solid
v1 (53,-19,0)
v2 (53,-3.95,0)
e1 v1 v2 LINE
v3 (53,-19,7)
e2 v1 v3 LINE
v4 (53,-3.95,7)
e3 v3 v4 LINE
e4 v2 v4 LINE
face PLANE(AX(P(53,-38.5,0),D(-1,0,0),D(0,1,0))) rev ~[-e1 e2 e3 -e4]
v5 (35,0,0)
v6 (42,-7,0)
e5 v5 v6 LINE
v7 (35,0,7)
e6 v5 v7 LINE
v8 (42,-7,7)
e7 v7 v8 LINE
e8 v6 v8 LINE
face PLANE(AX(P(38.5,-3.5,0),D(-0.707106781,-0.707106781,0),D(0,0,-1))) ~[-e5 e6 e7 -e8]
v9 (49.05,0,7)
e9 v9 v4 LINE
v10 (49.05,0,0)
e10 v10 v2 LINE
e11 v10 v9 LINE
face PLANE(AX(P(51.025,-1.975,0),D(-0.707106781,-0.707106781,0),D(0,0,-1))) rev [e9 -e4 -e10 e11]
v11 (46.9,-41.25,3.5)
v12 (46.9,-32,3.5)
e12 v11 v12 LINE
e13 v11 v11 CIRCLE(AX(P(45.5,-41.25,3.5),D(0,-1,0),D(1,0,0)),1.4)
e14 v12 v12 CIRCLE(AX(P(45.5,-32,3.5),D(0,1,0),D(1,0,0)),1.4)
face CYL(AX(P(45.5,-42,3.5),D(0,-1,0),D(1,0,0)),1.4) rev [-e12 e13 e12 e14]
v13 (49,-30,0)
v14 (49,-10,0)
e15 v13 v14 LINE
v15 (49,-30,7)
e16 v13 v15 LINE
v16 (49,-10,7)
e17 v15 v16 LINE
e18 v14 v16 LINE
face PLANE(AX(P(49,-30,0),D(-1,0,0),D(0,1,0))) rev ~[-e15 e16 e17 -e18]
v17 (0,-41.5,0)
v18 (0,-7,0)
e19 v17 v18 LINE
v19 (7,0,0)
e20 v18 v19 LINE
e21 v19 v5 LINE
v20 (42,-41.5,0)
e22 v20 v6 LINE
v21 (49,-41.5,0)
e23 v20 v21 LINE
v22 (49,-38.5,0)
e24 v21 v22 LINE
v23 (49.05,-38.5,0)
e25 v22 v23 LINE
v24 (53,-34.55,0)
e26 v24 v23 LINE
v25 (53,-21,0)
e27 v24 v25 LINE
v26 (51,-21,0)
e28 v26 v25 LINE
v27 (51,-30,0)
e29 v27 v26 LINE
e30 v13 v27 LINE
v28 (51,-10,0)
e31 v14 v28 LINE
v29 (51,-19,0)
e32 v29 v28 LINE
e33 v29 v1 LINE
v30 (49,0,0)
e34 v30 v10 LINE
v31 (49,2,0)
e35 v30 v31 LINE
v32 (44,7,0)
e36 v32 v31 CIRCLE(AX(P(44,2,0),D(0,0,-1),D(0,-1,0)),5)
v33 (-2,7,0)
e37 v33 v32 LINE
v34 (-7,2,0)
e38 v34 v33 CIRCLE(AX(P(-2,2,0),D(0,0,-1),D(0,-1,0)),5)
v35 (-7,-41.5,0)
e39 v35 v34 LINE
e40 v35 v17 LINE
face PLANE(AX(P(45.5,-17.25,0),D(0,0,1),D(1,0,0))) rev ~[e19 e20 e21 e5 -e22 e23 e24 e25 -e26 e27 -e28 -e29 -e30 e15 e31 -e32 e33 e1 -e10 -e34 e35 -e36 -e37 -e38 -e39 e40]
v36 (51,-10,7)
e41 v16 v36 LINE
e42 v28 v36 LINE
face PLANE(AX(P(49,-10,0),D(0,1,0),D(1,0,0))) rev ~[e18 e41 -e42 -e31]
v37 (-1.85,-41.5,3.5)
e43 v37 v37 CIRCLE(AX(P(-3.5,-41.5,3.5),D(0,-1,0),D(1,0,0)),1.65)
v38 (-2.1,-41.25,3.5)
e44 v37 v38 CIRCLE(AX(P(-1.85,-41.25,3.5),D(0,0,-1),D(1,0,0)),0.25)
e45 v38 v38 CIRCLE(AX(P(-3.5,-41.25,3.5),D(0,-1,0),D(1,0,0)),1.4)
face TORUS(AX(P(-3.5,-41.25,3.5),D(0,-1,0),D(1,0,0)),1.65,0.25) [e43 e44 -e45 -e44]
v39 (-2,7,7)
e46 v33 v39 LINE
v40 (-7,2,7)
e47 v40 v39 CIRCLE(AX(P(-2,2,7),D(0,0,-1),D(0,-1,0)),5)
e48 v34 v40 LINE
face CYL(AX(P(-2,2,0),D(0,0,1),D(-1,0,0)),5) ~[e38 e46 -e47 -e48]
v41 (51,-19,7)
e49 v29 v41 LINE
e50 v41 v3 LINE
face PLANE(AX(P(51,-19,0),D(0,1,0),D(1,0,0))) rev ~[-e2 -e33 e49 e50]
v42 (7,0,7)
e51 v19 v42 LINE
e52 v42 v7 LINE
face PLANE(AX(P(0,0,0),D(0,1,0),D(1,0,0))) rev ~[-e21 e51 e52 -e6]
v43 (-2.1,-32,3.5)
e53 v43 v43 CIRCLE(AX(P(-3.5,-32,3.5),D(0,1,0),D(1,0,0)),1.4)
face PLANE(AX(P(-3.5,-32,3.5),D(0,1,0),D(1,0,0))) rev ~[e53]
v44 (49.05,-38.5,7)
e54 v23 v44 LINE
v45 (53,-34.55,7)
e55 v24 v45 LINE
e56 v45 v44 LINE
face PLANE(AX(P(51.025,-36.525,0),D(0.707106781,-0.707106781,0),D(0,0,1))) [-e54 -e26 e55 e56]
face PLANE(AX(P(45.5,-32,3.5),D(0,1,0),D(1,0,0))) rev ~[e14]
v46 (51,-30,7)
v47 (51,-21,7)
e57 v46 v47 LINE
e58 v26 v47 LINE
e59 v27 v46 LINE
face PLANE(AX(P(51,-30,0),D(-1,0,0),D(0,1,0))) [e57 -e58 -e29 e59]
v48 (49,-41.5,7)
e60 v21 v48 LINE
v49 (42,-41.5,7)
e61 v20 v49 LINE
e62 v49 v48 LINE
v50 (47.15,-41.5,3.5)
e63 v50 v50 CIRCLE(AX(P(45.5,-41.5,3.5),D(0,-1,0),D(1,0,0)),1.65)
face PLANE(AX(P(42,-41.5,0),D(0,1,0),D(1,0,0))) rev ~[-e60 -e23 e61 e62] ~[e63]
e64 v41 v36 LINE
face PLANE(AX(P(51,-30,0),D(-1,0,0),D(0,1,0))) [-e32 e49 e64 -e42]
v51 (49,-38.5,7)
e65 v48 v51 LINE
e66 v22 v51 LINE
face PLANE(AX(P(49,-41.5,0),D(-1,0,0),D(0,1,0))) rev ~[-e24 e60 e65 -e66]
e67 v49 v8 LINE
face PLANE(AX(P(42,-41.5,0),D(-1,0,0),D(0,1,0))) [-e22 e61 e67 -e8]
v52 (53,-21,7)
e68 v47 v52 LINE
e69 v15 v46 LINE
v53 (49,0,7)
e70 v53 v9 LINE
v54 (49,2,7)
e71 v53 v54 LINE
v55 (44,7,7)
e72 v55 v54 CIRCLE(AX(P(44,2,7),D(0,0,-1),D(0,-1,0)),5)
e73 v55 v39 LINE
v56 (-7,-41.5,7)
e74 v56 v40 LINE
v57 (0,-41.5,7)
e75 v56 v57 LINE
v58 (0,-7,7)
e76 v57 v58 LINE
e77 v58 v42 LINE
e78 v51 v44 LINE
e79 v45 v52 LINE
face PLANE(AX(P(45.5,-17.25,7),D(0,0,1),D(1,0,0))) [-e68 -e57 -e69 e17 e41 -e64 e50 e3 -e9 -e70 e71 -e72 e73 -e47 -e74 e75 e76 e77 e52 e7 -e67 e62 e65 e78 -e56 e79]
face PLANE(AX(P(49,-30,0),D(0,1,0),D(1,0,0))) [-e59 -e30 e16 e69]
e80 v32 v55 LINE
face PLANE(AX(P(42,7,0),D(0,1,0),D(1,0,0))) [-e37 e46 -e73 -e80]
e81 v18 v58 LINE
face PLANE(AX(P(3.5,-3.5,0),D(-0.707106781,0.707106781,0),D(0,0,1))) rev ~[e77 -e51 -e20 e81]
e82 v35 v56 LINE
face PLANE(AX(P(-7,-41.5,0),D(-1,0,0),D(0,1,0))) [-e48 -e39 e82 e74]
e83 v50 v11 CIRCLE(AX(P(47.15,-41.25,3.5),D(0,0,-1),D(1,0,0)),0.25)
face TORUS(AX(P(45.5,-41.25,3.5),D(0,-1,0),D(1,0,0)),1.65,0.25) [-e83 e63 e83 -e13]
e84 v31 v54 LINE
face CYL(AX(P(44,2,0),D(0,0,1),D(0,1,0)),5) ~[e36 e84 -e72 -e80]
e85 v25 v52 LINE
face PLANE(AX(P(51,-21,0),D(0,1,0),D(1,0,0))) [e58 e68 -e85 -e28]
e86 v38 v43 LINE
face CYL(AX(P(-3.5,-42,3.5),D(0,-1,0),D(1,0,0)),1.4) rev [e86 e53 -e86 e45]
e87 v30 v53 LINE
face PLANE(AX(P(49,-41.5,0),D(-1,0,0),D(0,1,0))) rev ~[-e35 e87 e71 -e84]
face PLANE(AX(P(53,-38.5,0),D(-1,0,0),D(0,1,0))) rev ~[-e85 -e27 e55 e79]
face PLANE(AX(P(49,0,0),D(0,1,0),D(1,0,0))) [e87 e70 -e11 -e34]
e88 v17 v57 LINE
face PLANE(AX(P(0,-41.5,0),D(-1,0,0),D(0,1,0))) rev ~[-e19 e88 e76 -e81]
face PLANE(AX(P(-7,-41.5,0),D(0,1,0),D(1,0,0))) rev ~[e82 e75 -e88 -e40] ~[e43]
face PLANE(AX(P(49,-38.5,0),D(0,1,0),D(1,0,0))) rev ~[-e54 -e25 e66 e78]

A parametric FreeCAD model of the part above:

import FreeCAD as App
import Part
import Sketcher

V = App.Vector


def edges_at(feature, points):
    """Names of the edges that pass closest to the given points."""
    edges = feature.Shape.Edges
    near = lambda p: min(range(len(edges)), key=lambda i: edges[i].distToShape(Part.Vertex(*p))[0])
    return sorted({f"Edge{near(p) + 1}" for p in points})

doc = App.newDocument("Part")
params = doc.addObject("Spreadsheet::Sheet", "Params")
for row, (alias, value) in enumerate([
    ("sketch1_diameter", "2.8 mm"),
    ("pad1_length", "10 mm"),
    ("sketch2_diameter", "2.8 mm"),
    ("pad2_length", "10 mm"),
    ("sketch3_width", "2 mm"),
    ("pad3_length", "7 mm"),
    ("sketch4_width", "2 mm"),
    ("sketch4_height", "20 mm"),
    ("pad4_length", "7 mm"),
    ("sketch5_width", "7 mm"),
    ("sketch5_height", "48.5 mm"),
    ("pad5_length", "7 mm"),
    ("sketch6_width", "7 mm"),
    ("sketch6_height", "48.5 mm"),
    ("pad6_length", "7 mm"),
    ("sketch7_width", "4 mm"),
    ("sketch7_height", "38.5 mm"),
    ("pad7_length", "7 mm"),
    ("sketch8_width", "42 mm"),
    ("sketch8_height", "7 mm"),
    ("pad8_length", "7 mm"),
    ("chamfer_size", "3.95 mm"),
    ("chamfer2_size", "7 mm"),
    ("fillet_radius", "5 mm"),
    ("fillet2_radius", "0.25 mm"),
], start=1):
    params.set(f"A{row}", alias)
    params.set(f"B{row}", "=" + value)
    params.setAlias(f"B{row}", alias)

body = doc.addObject("PartDesign::Body", "Body")

sketch1 = body.newObject("Sketcher::SketchObject", "Sketch")
sketch1.AttachmentSupport = (doc.getObject("XY_Plane"), [""])
sketch1.MapMode = "FlatFace"
sketch1.addGeometry(Part.Circle(V(0, 0, 0), V(0, 0, 1), 1.4), False)
sketch1.addConstraint([
    Sketcher.Constraint("Coincident", 0, 3, -1, 1),
    Sketcher.Constraint("Diameter", 0, 2.8),
])
sketch1.setExpression("Constraints[1]", "Params.sketch1_diameter")
pad1 = body.newObject("PartDesign::Pad", "Pad")
pad1.Profile = sketch1
pad1.setExpression("Length", "Params.pad1_length")
body2 = doc.addObject("PartDesign::Body", "Body001")
doc.recompute()

body.Placement = App.Placement(V(0, 0, 0), App.Rotation(V(1, 0, 0), 270))
boolean = body2.newObject("PartDesign::Boolean", "Boolean")
boolean.Type = "Fuse"
boolean.addObjects([body])
body3 = doc.addObject("PartDesign::Body", "Body002")
doc.recompute()

body2.Placement = App.Placement(V(45.5, -42, 3.5), App.Rotation(V(0, 0, 1), 0))
boolean2 = body3.newObject("PartDesign::Boolean", "Boolean001")
boolean2.Type = "Fuse"
boolean2.addObjects([body2])
body4 = doc.addObject("PartDesign::Body", "Body003")

sketch2 = body4.newObject("Sketcher::SketchObject", "Sketch001")
sketch2.AttachmentSupport = (doc.getObject("XY_Plane003"), [""])
sketch2.MapMode = "FlatFace"
sketch2.addGeometry(Part.Circle(V(0, 0, 0), V(0, 0, 1), 1.4), False)
sketch2.addConstraint([
    Sketcher.Constraint("Coincident", 0, 3, -1, 1),
    Sketcher.Constraint("Diameter", 0, 2.8),
])
sketch2.setExpression("Constraints[1]", "Params.sketch2_diameter")
pad2 = body4.newObject("PartDesign::Pad", "Pad001")
pad2.Profile = sketch2
pad2.setExpression("Length", "Params.pad2_length")
body5 = doc.addObject("PartDesign::Body", "Body004")
doc.recompute()

body4.Placement = App.Placement(V(0, 0, 0), App.Rotation(V(1, 0, 0), 270))
boolean3 = body5.newObject("PartDesign::Boolean", "Boolean002")
boolean3.Type = "Fuse"
boolean3.addObjects([body4])
body6 = doc.addObject("PartDesign::Body", "Body005")
doc.recompute()

body5.Placement = App.Placement(V(-3.5, -42, 3.5), App.Rotation(V(0, 0, 1), 0))
boolean4 = body6.newObject("PartDesign::Boolean", "Boolean003")
boolean4.Type = "Fuse"
boolean4.addObjects([body5])
body7 = doc.addObject("PartDesign::Body", "Body006")

sketch3 = body7.newObject("Sketcher::SketchObject", "Sketch002")
sketch3.AttachmentSupport = (doc.getObject("XY_Plane006"), [""])
sketch3.MapMode = "FlatFace"
sketch3.addGeometry([
    Part.LineSegment(V(51, -19, 0), V(51, -21, 0)),
    Part.LineSegment(V(51, -21, 0), V(53, -21, 0)),
    Part.LineSegment(V(53, -21, 0), V(53, -19, 0)),
    Part.LineSegment(V(53, -19, 0), V(51, -19, 0)),
], False)
sketch3.addConstraint([
    Sketcher.Constraint("Coincident", 0, 2, 1, 1),
    Sketcher.Constraint("Coincident", 1, 2, 2, 1),
    Sketcher.Constraint("Coincident", 2, 2, 3, 1),
    Sketcher.Constraint("Coincident", 3, 2, 0, 1),
    Sketcher.Constraint("Vertical", 0),
    Sketcher.Constraint("Horizontal", 1),
    Sketcher.Constraint("Vertical", 2),
    Sketcher.Constraint("Horizontal", 3),
    Sketcher.Constraint("Equal", 3, 0),
    Sketcher.Constraint("DistanceX", 1, 1, 1, 2, 2.0),
    Sketcher.Constraint("DistanceX", -1, 1, 0, 2, 51.0),
    Sketcher.Constraint("DistanceY", 0, 2, -1, 1, 21.0),
])
sketch3.setExpression("Constraints[9]", "Params.sketch3_width")
pad3 = body7.newObject("PartDesign::Pad", "Pad002")
pad3.Profile = sketch3
pad3.setExpression("Length", "Params.pad3_length")
body8 = doc.addObject("PartDesign::Body", "Body007")

sketch4 = body8.newObject("Sketcher::SketchObject", "Sketch003")
sketch4.AttachmentSupport = (doc.getObject("XY_Plane007"), [""])
sketch4.MapMode = "FlatFace"
sketch4.addGeometry([
    Part.LineSegment(V(49, -10, 0), V(49, -30, 0)),
    Part.LineSegment(V(49, -30, 0), V(51, -30, 0)),
    Part.LineSegment(V(51, -30, 0), V(51, -10, 0)),
    Part.LineSegment(V(51, -10, 0), V(49, -10, 0)),
], False)
sketch4.addConstraint([
    Sketcher.Constraint("Coincident", 0, 2, 1, 1),
    Sketcher.Constraint("Coincident", 1, 2, 2, 1),
    Sketcher.Constraint("Coincident", 2, 2, 3, 1),
    Sketcher.Constraint("Coincident", 3, 2, 0, 1),
    Sketcher.Constraint("Vertical", 0),
    Sketcher.Constraint("Horizontal", 1),
    Sketcher.Constraint("Vertical", 2),
    Sketcher.Constraint("Horizontal", 3),
    Sketcher.Constraint("DistanceX", 1, 1, 1, 2, 2.0),
    Sketcher.Constraint("DistanceY", 0, 2, 0, 1, 20.0),
    Sketcher.Constraint("DistanceX", -1, 1, 0, 2, 49.0),
    Sketcher.Constraint("DistanceY", 0, 2, -1, 1, 30.0),
])
sketch4.setExpression("Constraints[8]", "Params.sketch4_width")
sketch4.setExpression("Constraints[9]", "Params.sketch4_height")
pad4 = body8.newObject("PartDesign::Pad", "Pad003")
pad4.Profile = sketch4
pad4.setExpression("Length", "Params.pad4_length")
body9 = doc.addObject("PartDesign::Body", "Body008")

sketch5 = body9.newObject("Sketcher::SketchObject", "Sketch004")
sketch5.AttachmentSupport = (doc.getObject("XY_Plane008"), [""])
sketch5.MapMode = "FlatFace"
sketch5.addGeometry([
    Part.LineSegment(V(-7, 7, 0), V(-7, -42, 0)),
    Part.LineSegment(V(-7, -42, 0), V(0, -42, 0)),
    Part.LineSegment(V(0, -42, 0), V(0, 7, 0)),
    Part.LineSegment(V(0, 7, 0), V(-7, 7, 0)),
], False)
sketch5.addConstraint([
    Sketcher.Constraint("Coincident", 0, 2, 1, 1),
    Sketcher.Constraint("Coincident", 1, 2, 2, 1),
    Sketcher.Constraint("Coincident", 2, 2, 3, 1),
    Sketcher.Constraint("Coincident", 3, 2, 0, 1),
    Sketcher.Constraint("Vertical", 0),
    Sketcher.Constraint("Horizontal", 1),
    Sketcher.Constraint("Vertical", 2),
    Sketcher.Constraint("Horizontal", 3),
    Sketcher.Constraint("PointOnObject", 1, 2, -2),
    Sketcher.Constraint("DistanceX", 1, 1, 1, 2, 7.0),
    Sketcher.Constraint("DistanceY", 0, 2, 0, 1, 48.5),
    Sketcher.Constraint("DistanceY", -1, 1, 2, 2, 7.0),
])
sketch5.setExpression("Constraints[9]", "Params.sketch5_width")
sketch5.setExpression("Constraints[10]", "Params.sketch5_height")
pad5 = body9.newObject("PartDesign::Pad", "Pad004")
pad5.Profile = sketch5
pad5.setExpression("Length", "Params.pad5_length")
body10 = doc.addObject("PartDesign::Body", "Body009")

sketch6 = body10.newObject("Sketcher::SketchObject", "Sketch005")
sketch6.AttachmentSupport = (doc.getObject("XY_Plane009"), [""])
sketch6.MapMode = "FlatFace"
sketch6.addGeometry([
    Part.LineSegment(V(42, 7, 0), V(42, -42, 0)),
    Part.LineSegment(V(42, -42, 0), V(49, -42, 0)),
    Part.LineSegment(V(49, -42, 0), V(49, 7, 0)),
    Part.LineSegment(V(49, 7, 0), V(42, 7, 0)),
], False)
sketch6.addConstraint([
    Sketcher.Constraint("Coincident", 0, 2, 1, 1),
    Sketcher.Constraint("Coincident", 1, 2, 2, 1),
    Sketcher.Constraint("Coincident", 2, 2, 3, 1),
    Sketcher.Constraint("Coincident", 3, 2, 0, 1),
    Sketcher.Constraint("Vertical", 0),
    Sketcher.Constraint("Horizontal", 1),
    Sketcher.Constraint("Vertical", 2),
    Sketcher.Constraint("Horizontal", 3),
    Sketcher.Constraint("DistanceX", 1, 1, 1, 2, 7.0),
    Sketcher.Constraint("DistanceY", 0, 2, 0, 1, 48.5),
    Sketcher.Constraint("DistanceX", -1, 1, 0, 2, 42.0),
    Sketcher.Constraint("DistanceY", -1, 1, 2, 2, 7.0),
])
sketch6.setExpression("Constraints[8]", "Params.sketch6_width")
sketch6.setExpression("Constraints[9]", "Params.sketch6_height")
pad6 = body10.newObject("PartDesign::Pad", "Pad005")
pad6.Profile = sketch6
pad6.setExpression("Length", "Params.pad6_length")
body11 = doc.addObject("PartDesign::Body", "Body010")

sketch7 = body11.newObject("Sketcher::SketchObject", "Sketch006")
sketch7.AttachmentSupport = (doc.getObject("XY_Plane010"), [""])
sketch7.MapMode = "FlatFace"
sketch7.addGeometry([
    Part.LineSegment(V(49, 0, 0), V(49, -38.5, 0)),
    Part.LineSegment(V(49, -38.5, 0), V(53, -38.5, 0)),
    Part.LineSegment(V(53, -38.5, 0), V(53, 0, 0)),
    Part.LineSegment(V(53, 0, 0), V(49, 0, 0)),
], False)
sketch7.addConstraint([
    Sketcher.Constraint("Coincident", 0, 2, 1, 1),
    Sketcher.Constraint("Coincident", 1, 2, 2, 1),
    Sketcher.Constraint("Coincident", 2, 2, 3, 1),
    Sketcher.Constraint("Coincident", 3, 2, 0, 1),
    Sketcher.Constraint("Vertical", 0),
    Sketcher.Constraint("Horizontal", 1),
    Sketcher.Constraint("Vertical", 2),
    Sketcher.Constraint("Horizontal", 3),
    Sketcher.Constraint("PointOnObject", 2, 2, -1),
    Sketcher.Constraint("DistanceX", 1, 1, 1, 2, 4.0),
    Sketcher.Constraint("DistanceY", 0, 2, 0, 1, 38.5),
    Sketcher.Constraint("DistanceX", -1, 1, 0, 2, 49.0),
])
sketch7.setExpression("Constraints[9]", "Params.sketch7_width")
sketch7.setExpression("Constraints[10]", "Params.sketch7_height")
pad7 = body11.newObject("PartDesign::Pad", "Pad006")
pad7.Profile = sketch7
pad7.setExpression("Length", "Params.pad7_length")
body12 = doc.addObject("PartDesign::Body", "Body011")

sketch8 = body12.newObject("Sketcher::SketchObject", "Sketch007")
sketch8.AttachmentSupport = (doc.getObject("XY_Plane011"), [""])
sketch8.MapMode = "FlatFace"
sketch8.addGeometry([
    Part.LineSegment(V(0, 7, 0), V(0, 0, 0)),
    Part.LineSegment(V(0, 0, 0), V(42, 0, 0)),
    Part.LineSegment(V(42, 0, 0), V(42, 7, 0)),
    Part.LineSegment(V(42, 7, 0), V(0, 7, 0)),
], False)
sketch8.addConstraint([
    Sketcher.Constraint("Coincident", 0, 2, 1, 1),
    Sketcher.Constraint("Coincident", 1, 2, 2, 1),
    Sketcher.Constraint("Coincident", 2, 2, 3, 1),
    Sketcher.Constraint("Coincident", 3, 2, 0, 1),
    Sketcher.Constraint("Vertical", 0),
    Sketcher.Constraint("Horizontal", 1),
    Sketcher.Constraint("Vertical", 2),
    Sketcher.Constraint("Horizontal", 3),
    Sketcher.Constraint("Coincident", 0, 2, -1, 1),
    Sketcher.Constraint("DistanceX", 1, 1, 1, 2, 42.0),
    Sketcher.Constraint("DistanceY", 0, 2, 0, 1, 7.0),
])
sketch8.setExpression("Constraints[9]", "Params.sketch8_width")
sketch8.setExpression("Constraints[10]", "Params.sketch8_height")
pad8 = body12.newObject("PartDesign::Pad", "Pad007")
pad8.Profile = sketch8
pad8.setExpression("Length", "Params.pad8_length")
doc.recompute()

boolean5 = body12.newObject("PartDesign::Boolean", "Boolean004")
boolean5.Type = "Fuse"
boolean5.addObjects([body9])
doc.recompute()

boolean6 = body12.newObject("PartDesign::Boolean", "Boolean005")
boolean6.Type = "Fuse"
boolean6.addObjects([body10])
doc.recompute()

boolean7 = body12.newObject("PartDesign::Boolean", "Boolean006")
boolean7.Type = "Fuse"
boolean7.addObjects([body11])
doc.recompute()

boolean8 = body12.newObject("PartDesign::Boolean", "Boolean007")
boolean8.Type = "Cut"
boolean8.addObjects([body8])
doc.recompute()

boolean9 = body12.newObject("PartDesign::Boolean", "Boolean008")
boolean9.Type = "Cut"
boolean9.addObjects([body7])
doc.recompute()

boolean10 = body12.newObject("PartDesign::Boolean", "Boolean009")
boolean10.Type = "Cut"
boolean10.addObjects([body6])
doc.recompute()

boolean11 = body12.newObject("PartDesign::Boolean", "Boolean010")
boolean11.Type = "Cut"
boolean11.addObjects([body3])
doc.recompute()

chamfer = body12.newObject("PartDesign::Chamfer", "Chamfer")
chamfer.Base = (boolean11, edges_at(boolean11, [(53, -38.5, 3.5), (53, 0, 3.5)]))
chamfer.setExpression("Size", "Params.chamfer_size")
doc.recompute()

chamfer2 = body12.newObject("PartDesign::Chamfer", "Chamfer001")
chamfer2.Base = (chamfer, edges_at(chamfer, [(42, 0, 3.5), (0, 0, 3.5)]))
chamfer2.setExpression("Size", "Params.chamfer2_size")
doc.recompute()

fillet = body12.newObject("PartDesign::Fillet", "Fillet")
fillet.Base = (chamfer2, edges_at(chamfer2, [(49, 7, 3.5), (-7, 7, 3.5)]))
fillet.setExpression("Radius", "Params.fillet_radius")
doc.recompute()

fillet2 = body12.newObject("PartDesign::Fillet", "Fillet001")
fillet2.Base = (fillet, edges_at(fillet, [(44.1, -41.5, 3.5), (-4.9, -41.5, 3.5)]))
fillet2.setExpression("Radius", "Params.fillet2_radius")

doc.recompute()
